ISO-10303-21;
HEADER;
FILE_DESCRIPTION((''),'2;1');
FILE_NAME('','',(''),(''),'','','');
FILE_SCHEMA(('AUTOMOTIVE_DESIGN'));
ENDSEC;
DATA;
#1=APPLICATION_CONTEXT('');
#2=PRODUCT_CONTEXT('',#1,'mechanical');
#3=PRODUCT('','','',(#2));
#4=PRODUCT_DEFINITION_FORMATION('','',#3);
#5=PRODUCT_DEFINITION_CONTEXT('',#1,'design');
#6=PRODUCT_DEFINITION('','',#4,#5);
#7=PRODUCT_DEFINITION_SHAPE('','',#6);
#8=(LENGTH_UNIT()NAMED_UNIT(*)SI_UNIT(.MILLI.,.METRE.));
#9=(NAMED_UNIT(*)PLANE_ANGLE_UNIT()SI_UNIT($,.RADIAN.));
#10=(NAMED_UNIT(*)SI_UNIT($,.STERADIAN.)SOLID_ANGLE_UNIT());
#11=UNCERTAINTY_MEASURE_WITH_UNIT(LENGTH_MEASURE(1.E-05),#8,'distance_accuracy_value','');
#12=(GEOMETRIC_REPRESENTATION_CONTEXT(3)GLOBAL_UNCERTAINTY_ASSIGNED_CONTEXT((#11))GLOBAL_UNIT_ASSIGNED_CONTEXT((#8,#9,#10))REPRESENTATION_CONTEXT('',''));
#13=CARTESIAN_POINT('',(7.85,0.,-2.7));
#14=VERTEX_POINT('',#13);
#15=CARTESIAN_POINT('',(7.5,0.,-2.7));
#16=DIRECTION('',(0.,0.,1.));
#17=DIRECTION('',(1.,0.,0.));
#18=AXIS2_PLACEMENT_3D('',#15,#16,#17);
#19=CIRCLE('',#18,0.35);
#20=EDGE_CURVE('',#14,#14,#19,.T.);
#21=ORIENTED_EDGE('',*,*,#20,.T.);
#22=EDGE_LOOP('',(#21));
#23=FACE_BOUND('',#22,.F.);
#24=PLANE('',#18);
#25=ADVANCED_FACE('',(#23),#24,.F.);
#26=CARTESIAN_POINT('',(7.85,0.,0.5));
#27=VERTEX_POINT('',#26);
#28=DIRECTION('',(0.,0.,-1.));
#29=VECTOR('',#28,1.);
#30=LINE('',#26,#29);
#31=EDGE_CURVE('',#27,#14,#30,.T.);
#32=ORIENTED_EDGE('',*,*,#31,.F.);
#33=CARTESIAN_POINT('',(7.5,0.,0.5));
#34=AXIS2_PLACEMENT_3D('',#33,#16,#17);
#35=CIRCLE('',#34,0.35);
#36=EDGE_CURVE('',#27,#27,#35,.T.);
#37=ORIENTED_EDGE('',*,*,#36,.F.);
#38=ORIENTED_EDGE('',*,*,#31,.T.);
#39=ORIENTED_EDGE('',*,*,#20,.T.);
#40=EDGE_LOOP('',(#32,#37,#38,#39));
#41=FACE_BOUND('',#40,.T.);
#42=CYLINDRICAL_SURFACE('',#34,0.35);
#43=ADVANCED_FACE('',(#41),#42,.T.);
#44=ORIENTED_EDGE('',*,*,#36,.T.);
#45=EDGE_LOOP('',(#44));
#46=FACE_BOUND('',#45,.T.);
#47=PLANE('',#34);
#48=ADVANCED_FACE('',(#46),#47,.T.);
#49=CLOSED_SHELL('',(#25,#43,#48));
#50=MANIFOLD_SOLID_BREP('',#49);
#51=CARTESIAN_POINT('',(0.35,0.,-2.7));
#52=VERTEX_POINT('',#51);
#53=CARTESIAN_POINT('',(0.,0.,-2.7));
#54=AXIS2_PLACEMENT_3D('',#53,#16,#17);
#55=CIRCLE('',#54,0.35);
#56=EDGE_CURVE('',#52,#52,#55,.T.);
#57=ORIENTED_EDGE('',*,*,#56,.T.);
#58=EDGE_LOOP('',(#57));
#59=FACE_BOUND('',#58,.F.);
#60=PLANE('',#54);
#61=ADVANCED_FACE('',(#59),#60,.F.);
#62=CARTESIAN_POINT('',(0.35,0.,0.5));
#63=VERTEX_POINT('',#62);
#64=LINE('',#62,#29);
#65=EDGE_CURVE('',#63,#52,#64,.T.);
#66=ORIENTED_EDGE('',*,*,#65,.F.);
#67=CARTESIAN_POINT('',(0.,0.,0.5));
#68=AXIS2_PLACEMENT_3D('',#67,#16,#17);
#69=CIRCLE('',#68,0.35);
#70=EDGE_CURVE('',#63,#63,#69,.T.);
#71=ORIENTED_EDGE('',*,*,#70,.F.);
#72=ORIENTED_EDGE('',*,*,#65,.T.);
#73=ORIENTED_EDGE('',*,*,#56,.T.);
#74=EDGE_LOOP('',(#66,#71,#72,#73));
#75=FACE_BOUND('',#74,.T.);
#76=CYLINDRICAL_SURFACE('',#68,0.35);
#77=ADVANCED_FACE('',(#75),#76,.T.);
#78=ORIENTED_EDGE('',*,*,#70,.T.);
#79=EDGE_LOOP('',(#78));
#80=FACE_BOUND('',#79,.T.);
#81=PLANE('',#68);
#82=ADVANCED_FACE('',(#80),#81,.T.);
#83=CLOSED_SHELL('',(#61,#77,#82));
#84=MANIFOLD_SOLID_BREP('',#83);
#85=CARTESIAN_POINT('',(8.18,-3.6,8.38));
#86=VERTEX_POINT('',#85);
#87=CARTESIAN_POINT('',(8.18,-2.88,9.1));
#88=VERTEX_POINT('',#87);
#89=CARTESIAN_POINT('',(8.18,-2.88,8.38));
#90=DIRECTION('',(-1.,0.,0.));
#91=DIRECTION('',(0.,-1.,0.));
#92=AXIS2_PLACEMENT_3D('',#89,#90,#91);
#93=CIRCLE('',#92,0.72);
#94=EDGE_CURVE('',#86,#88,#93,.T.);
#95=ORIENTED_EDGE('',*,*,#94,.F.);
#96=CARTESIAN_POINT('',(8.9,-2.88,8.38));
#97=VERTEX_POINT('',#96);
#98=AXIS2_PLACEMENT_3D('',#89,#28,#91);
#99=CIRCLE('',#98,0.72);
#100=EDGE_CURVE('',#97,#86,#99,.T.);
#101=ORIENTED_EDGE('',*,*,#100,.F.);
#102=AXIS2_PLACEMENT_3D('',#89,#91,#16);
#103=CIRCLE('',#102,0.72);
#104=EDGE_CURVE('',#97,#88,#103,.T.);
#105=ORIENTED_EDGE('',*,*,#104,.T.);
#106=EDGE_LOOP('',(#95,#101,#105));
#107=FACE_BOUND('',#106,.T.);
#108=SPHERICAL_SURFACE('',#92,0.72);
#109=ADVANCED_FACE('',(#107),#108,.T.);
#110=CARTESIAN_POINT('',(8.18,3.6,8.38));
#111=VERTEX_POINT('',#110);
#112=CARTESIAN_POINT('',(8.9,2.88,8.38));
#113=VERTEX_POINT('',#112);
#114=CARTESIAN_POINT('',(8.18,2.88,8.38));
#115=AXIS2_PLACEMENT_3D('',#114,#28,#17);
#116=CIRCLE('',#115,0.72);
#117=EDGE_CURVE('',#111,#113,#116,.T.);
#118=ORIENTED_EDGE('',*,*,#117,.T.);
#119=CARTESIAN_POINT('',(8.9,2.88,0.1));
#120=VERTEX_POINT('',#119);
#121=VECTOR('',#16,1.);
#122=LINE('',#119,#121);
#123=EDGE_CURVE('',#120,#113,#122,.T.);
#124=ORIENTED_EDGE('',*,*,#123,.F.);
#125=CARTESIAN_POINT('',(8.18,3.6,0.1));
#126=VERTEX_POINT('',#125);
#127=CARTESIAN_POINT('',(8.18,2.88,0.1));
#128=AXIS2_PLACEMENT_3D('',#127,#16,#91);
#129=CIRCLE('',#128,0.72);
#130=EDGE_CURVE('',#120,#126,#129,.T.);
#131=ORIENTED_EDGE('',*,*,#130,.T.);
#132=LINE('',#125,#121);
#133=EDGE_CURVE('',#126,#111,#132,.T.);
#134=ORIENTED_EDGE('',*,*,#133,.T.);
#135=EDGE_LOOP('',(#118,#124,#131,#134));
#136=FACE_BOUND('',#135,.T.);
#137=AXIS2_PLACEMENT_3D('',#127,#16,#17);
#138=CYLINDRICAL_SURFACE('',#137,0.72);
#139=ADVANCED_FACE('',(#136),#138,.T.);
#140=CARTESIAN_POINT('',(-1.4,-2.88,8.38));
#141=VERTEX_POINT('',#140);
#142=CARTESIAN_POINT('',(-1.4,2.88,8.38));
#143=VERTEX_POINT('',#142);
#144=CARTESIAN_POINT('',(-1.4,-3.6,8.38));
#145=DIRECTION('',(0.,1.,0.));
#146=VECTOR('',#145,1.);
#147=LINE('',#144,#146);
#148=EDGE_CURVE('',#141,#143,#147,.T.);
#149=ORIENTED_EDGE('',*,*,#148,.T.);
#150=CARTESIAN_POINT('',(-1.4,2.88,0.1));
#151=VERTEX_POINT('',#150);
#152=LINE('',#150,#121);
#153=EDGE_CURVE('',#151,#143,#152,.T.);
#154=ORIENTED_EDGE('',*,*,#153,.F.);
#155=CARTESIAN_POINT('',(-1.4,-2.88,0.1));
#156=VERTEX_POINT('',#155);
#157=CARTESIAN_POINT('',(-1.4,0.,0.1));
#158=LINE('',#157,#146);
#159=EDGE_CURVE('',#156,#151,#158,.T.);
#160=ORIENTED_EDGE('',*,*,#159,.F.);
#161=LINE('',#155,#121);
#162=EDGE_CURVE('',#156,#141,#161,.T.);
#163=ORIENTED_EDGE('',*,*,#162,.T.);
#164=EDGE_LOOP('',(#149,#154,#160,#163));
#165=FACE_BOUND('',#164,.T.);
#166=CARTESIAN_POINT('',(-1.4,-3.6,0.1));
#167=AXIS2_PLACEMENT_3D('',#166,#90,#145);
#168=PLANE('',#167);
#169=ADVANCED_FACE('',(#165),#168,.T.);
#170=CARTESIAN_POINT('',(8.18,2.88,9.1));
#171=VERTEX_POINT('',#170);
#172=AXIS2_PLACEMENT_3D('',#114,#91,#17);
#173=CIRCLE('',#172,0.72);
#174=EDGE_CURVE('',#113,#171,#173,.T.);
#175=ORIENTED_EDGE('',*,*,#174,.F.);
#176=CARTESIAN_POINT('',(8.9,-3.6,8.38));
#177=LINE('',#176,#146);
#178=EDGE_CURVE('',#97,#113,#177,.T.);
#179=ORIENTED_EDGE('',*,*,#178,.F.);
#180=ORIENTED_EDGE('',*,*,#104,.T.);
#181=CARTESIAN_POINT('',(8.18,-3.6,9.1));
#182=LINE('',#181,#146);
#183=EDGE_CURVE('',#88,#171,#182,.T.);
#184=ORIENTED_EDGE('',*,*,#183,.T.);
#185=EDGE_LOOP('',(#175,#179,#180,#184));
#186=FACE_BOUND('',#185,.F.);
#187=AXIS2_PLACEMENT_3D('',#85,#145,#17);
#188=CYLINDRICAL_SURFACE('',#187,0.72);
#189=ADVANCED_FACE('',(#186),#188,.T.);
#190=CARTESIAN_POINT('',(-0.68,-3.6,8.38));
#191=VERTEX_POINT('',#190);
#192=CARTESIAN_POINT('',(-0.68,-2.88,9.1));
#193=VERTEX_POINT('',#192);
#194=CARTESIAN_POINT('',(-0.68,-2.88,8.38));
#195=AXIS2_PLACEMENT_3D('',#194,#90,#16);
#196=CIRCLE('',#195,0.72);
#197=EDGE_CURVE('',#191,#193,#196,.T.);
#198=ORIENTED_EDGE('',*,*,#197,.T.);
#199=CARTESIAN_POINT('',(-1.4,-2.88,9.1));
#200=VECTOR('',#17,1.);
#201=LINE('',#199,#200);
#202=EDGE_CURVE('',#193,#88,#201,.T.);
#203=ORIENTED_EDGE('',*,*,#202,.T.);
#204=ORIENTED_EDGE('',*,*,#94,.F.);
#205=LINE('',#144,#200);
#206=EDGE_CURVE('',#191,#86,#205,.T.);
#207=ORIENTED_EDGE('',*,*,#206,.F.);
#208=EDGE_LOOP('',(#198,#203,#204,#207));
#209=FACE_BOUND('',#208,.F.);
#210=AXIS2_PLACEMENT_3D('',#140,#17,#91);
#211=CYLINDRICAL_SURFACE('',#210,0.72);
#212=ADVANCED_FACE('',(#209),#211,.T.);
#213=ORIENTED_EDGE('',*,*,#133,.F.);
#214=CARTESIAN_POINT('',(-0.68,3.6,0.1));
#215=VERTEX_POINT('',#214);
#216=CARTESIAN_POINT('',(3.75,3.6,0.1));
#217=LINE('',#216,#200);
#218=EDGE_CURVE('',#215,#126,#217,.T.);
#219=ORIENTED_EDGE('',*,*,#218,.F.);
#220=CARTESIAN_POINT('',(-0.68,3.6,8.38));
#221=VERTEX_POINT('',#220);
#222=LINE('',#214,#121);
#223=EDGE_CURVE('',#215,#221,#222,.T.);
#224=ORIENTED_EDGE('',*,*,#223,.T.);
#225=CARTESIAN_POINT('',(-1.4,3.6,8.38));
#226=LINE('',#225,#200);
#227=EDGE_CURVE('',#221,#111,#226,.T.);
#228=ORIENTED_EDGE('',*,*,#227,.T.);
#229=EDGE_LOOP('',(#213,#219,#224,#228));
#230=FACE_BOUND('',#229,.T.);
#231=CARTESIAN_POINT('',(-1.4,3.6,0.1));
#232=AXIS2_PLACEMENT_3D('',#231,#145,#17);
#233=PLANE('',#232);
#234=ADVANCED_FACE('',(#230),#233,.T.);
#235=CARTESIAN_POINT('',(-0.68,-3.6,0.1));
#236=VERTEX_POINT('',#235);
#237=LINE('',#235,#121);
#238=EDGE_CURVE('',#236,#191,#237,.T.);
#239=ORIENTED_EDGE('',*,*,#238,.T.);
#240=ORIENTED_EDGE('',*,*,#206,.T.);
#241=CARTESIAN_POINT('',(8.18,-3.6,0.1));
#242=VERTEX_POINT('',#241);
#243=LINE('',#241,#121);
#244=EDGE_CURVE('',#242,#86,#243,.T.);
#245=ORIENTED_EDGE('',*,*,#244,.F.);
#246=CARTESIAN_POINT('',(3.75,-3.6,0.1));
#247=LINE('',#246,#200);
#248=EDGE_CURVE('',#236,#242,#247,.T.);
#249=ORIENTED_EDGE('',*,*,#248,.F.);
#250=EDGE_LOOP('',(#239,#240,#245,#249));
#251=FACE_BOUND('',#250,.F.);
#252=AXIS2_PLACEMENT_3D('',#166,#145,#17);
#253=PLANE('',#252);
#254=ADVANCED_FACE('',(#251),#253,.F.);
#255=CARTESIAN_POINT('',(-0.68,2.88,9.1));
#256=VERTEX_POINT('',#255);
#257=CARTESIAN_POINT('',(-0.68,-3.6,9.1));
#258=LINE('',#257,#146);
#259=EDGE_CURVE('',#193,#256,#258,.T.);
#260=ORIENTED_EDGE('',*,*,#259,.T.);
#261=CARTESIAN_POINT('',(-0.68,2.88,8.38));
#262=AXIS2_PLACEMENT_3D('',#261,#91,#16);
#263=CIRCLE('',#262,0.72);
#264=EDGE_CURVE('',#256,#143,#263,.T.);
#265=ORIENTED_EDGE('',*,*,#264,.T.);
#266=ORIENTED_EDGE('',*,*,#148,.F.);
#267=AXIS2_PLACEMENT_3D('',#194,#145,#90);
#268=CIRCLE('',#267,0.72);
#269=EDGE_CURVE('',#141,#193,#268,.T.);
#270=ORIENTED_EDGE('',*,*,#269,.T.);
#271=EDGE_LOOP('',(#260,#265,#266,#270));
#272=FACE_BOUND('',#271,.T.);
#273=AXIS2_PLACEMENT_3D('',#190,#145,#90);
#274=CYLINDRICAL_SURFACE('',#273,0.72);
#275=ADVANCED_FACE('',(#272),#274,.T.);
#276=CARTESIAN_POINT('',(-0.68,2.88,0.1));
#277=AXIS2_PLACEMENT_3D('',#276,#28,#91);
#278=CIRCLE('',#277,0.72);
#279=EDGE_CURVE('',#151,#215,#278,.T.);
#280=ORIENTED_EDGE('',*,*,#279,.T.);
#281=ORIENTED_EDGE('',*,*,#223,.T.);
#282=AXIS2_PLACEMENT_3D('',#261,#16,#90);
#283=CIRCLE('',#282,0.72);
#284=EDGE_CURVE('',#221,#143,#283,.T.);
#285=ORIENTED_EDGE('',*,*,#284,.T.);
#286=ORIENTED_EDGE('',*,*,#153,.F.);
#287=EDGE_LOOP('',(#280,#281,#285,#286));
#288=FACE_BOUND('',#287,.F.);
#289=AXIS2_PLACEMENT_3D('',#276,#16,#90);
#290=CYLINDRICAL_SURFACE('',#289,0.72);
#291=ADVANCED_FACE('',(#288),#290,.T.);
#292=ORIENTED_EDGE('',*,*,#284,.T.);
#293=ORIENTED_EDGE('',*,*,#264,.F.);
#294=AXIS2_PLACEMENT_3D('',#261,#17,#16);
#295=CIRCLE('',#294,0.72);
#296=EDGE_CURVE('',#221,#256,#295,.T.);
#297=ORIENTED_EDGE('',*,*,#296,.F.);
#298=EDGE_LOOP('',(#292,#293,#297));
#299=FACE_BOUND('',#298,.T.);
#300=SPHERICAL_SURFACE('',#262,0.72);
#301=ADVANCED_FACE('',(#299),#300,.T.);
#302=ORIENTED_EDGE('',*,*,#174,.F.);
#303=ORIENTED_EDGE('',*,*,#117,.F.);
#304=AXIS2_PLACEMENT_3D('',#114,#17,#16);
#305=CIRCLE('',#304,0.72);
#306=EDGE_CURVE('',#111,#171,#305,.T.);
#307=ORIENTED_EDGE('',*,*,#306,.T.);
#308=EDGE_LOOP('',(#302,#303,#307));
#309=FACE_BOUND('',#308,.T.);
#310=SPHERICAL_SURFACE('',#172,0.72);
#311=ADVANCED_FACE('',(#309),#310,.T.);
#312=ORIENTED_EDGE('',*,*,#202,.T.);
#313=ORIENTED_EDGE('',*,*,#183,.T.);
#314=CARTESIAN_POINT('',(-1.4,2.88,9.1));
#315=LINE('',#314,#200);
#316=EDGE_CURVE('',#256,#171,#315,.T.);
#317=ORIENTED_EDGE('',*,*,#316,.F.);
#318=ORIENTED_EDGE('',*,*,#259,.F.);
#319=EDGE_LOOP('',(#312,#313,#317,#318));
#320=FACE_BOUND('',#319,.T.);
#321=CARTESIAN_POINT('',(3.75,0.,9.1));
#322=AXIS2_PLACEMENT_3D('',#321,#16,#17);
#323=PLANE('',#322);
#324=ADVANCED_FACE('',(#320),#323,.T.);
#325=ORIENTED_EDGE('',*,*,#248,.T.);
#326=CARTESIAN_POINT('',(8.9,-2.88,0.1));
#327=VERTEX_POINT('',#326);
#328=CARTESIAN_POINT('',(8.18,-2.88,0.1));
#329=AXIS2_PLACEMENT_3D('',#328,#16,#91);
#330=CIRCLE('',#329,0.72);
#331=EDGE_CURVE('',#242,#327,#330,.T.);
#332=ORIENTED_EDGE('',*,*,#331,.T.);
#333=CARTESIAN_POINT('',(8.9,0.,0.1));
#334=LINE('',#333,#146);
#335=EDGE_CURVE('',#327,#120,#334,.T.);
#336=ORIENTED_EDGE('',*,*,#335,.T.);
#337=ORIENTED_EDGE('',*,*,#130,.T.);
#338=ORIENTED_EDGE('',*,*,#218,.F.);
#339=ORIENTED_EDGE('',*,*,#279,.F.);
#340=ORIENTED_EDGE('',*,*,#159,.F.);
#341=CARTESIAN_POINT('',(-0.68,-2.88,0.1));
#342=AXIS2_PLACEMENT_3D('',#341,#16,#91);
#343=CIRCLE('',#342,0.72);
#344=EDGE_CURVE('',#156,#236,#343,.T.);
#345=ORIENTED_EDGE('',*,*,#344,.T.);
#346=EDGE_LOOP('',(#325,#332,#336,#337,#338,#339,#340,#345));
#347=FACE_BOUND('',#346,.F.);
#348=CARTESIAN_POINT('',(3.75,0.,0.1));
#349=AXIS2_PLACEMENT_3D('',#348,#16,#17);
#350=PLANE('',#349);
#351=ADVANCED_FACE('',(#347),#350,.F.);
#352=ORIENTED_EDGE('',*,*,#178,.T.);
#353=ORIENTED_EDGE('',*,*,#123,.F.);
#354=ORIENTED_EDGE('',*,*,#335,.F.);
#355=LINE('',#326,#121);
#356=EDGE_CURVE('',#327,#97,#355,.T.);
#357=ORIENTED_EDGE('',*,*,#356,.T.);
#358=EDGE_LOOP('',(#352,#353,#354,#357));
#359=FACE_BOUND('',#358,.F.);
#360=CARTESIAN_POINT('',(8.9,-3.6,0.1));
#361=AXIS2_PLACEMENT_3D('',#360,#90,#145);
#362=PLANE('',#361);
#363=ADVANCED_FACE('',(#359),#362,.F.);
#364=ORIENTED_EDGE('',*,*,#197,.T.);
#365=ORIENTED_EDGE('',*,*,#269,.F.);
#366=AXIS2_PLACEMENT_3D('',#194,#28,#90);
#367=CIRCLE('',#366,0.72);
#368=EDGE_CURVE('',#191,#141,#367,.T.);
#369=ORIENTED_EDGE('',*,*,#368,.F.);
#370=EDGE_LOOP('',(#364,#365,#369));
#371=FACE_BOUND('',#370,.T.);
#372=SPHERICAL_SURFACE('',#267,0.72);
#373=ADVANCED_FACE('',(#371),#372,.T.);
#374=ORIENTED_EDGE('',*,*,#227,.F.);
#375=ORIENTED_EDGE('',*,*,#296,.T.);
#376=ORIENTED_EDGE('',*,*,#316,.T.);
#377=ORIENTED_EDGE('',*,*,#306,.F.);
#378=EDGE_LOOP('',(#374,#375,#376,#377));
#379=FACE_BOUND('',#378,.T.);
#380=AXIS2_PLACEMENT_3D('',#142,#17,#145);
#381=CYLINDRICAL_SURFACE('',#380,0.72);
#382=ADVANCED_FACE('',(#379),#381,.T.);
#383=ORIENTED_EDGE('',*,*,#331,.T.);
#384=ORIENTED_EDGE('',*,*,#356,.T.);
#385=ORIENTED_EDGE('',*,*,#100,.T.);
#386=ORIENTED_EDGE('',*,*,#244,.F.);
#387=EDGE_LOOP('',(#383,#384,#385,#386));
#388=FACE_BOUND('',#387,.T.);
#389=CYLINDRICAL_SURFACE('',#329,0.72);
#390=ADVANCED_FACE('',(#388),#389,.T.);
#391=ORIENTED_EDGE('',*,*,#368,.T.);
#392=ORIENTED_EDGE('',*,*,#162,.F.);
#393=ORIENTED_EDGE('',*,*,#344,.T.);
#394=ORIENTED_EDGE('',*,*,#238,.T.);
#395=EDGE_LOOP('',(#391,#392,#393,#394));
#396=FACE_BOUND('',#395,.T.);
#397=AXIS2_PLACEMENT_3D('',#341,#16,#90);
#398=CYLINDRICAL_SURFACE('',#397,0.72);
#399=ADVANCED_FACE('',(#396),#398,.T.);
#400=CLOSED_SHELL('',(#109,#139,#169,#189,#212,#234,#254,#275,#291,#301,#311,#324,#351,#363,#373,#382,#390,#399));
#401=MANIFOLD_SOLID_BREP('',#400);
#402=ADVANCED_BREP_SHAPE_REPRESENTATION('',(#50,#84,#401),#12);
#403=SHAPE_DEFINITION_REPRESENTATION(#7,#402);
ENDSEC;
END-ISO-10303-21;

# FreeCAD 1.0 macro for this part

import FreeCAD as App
import Part
import Sketcher

V = App.Vector
Q = App.Units.Quantity


def edges_at(feature, points):
    """Names of the edges that pass closest to the given points."""
    edges = feature.Shape.Edges
    near = lambda p: min(range(len(edges)), key=lambda i: edges[i].distToShape(Part.Vertex(*p))[0])
    return sorted({f"Edge{near(p) + 1}" for p in points})


def add_polygon(sketch, points):
    """Adds a closed chain of lines whose ends are joined by coincident constraints."""
    first, n = sketch.GeometryCount, len(points)
    for a, b in zip(points, points[1:] + points[:1]):
        sketch.addGeometry(Part.LineSegment(App.Vector(*a, 0), App.Vector(*b, 0)), False)
    for i in range(n):
        sketch.addConstraint(Sketcher.Constraint("Coincident", first + i, 2, first + (i + 1) % n, 1))

doc = App.newDocument("Part")
params = doc.addObject("Spreadsheet::Sheet", "Params")
for row, (alias, value) in enumerate([
    ("sketch1_width", "10.3 mm"),
    ("sketch1_height", "7.2 mm"),
    ("pad1_length", "9 mm"),
    ("fillet_radius", "0.72 mm"),
    ("sketch2_diameter", "0.7 mm"),
    ("pad2_length", "3.2 mm"),
], start=1):
    params.set(f"A{row}", alias)
    params.set(f"B{row}", "=" + value)
    params.setAlias(f"B{row}", alias)

body = doc.addObject("PartDesign::Body", "Body")

sketch1 = doc.addObject("Sketcher::SketchObject", "Sketch")
body.addObject(sketch1)
sketch1.AttachmentSupport = (doc.XY_Plane, [""])
sketch1.MapMode = "FlatFace"
sketch1.AttachmentOffset = App.Placement(V(0, 0, 0.1), App.Rotation())
add_polygon(sketch1, [(-1, 4), (-1, -4), (9, -4), (9, 4)])
sketch1.addConstraint([
    Sketcher.Constraint("Vertical", 0),
    Sketcher.Constraint("Horizontal", 1),
    Sketcher.Constraint("Vertical", 2),
    Sketcher.Constraint("Horizontal", 3),
    Sketcher.Constraint("DistanceX", 1, 1, 1, 2, Q("10.3 mm")),
    Sketcher.Constraint("DistanceY", 0, 2, 0, 1, Q("7.2 mm")),
    Sketcher.Constraint("DistanceX", 0, 2, -1, 1, Q("1.4 mm")),
    Sketcher.Constraint("DistanceY", 0, 2, -1, 1, Q("3.6 mm")),
])
sketch1.setExpression("Constraints[8]", "Params.sketch1_width")
sketch1.setExpression("Constraints[9]", "Params.sketch1_height")
pad1 = doc.addObject("PartDesign::Pad", "Pad")
body.addObject(pad1)
pad1.Profile = sketch1
pad1.setExpression("Length", "Params.pad1_length")
doc.recompute()

fillet = doc.addObject("PartDesign::Fillet", "Fillet")
body.addObject(fillet)
fillet.Base = (pad1, edges_at(pad1, [
    (-1.4, 0, 9.1),
    (-1.4, -3.6, 4.6),
    (3.75, -3.6, 9.1),
    (8.9, -3.6, 4.6),
    (8.9, 0, 9.1),
    (8.9, 3.6, 4.6),
    (3.75, 3.6, 9.1),
    (-1.4, 3.6, 4.6),
]))
fillet.setExpression("Radius", "Params.fillet_radius")
body2 = doc.addObject("PartDesign::Body", "Body001")
body2.AllowCompound = True

sketch2 = doc.addObject("Sketcher::SketchObject", "Sketch001")
body2.addObject(sketch2)
sketch2.AttachmentSupport = (doc.getObject("XY_Plane001"), [""])
sketch2.MapMode = "FlatFace"
sketch2.AttachmentOffset = App.Placement(V(0, 0, 0.5), App.Rotation())
sketch2.addGeometry([
    Part.Circle(V(0, 0, 0), V(0, 0, 1), 0.35),
    Part.Circle(V(7.5, 0, 0), V(0, 0, 1), 0.35),
], False)
sketch2.addConstraint([
    Sketcher.Constraint("Coincident", 0, 3, -1, 1),
    Sketcher.Constraint("Equal", 0, 1),
    Sketcher.Constraint("PointOnObject", 1, 3, -1),
    Sketcher.Constraint("Diameter", 0, Q("0.7 mm")),
    Sketcher.Constraint("DistanceX", -1, 1, 1, 3, Q("7.5 mm")),
])
sketch2.setExpression("Constraints[3]", "Params.sketch2_diameter")
pad2 = doc.addObject("PartDesign::Pad", "Pad001")
body2.addObject(pad2)
pad2.Profile = sketch2
pad2.setExpression("Length", "Params.pad2_length")
pad2.Reversed = True

doc.recompute()
